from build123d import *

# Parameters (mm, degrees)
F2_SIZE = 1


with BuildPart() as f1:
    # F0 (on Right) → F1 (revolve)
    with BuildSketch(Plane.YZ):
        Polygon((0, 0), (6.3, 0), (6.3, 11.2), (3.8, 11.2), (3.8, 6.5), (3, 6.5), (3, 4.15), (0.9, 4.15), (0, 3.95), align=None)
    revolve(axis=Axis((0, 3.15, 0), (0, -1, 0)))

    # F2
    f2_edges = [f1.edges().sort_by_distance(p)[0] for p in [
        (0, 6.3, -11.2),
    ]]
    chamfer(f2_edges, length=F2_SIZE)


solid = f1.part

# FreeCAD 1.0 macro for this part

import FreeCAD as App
import Part
import Sketcher

V = App.Vector
Q = App.Units.Quantity


def edges_at(feature, points):
    """Names of the edges that pass closest to the given points."""
    edges = feature.Shape.Edges
    near = lambda p: min(range(len(edges)), key=lambda i: edges[i].distToShape(Part.Vertex(*p))[0])
    return sorted({f"Edge{near(p) + 1}" for p in points})


def add_polygon(sketch, points):
    """Adds a closed chain of lines whose ends are joined by coincident constraints."""
    first, n = sketch.GeometryCount, len(points)
    for a, b in zip(points, points[1:] + points[:1]):
        sketch.addGeometry(Part.LineSegment(App.Vector(*a, 0), App.Vector(*b, 0)), False)
    for i in range(n):
        sketch.addConstraint(Sketcher.Constraint("Coincident", first + i, 2, first + (i + 1) % n, 1))

doc = App.newDocument("Part")
body = doc.addObject("PartDesign::Body", "Body")

# Sketch on YZ plane
sketch1 = body.newObject("Sketcher::SketchObject", "Sketch")
sketch1.AttachmentSupport = (doc.getObject("YZ_Plane"), [""])
sketch1.MapMode = "FlatFace"
add_polygon(sketch1, [(0, 0), (6.3, 0), (6.3, 11.2), (3.8, 11.2), (3.8, 6.5), (3, 6.5), (3, 4.2), (0.9, 4.2), (0, 4)])  # lines 0-8
sketch1.addConstraint([
    Sketcher.Constraint("Horizontal", 0),
    Sketcher.Constraint("Vertical", 1),
    Sketcher.Constraint("Horizontal", 2),
    Sketcher.Constraint("Vertical", 3),
    Sketcher.Constraint("Horizontal", 4),
    Sketcher.Constraint("Vertical", 5),
    Sketcher.Constraint("Horizontal", 6),
    Sketcher.Constraint("Vertical", 8),
    Sketcher.Constraint("Coincident", 8, 2, -1, 1),
    Sketcher.Constraint("DistanceX", 0, 1, 0, 2, Q("6.3 mm")),
    Sketcher.Constraint("DistanceX", 2, 2, 2, 1, Q("2.5 mm")),
    Sketcher.Constraint("DistanceX", 4, 2, 4, 1, Q("0.8 mm")),
    Sketcher.Constraint("DistanceX", 6, 2, 6, 1, Q("2.1 mm")),
    Sketcher.Constraint("DistanceY", 1, 1, 1, 2, Q("11.2 mm")),
    Sketcher.Constraint("DistanceY", 3, 2, 3, 1, Q("4.7 mm")),
    Sketcher.Constraint("DistanceY", 5, 2, 5, 1, Q("2.35 mm")),
    Sketcher.Constraint("DistanceY", 8, 2, 8, 1, Q("3.95 mm")),
])
revolution = body.newObject("PartDesign::Revolution", "Revolution")
revolution.Profile = sketch1
revolution.ReferenceAxis = (sketch1, ["H_Axis"])
revolution.Angle = 360
doc.recompute()

chamfer = body.newObject("PartDesign::Chamfer", "Chamfer")
chamfer.Base = (revolution, edges_at(revolution, [(0, 6.3, -11.2)]))
chamfer.Size = 1

doc.recompute()
